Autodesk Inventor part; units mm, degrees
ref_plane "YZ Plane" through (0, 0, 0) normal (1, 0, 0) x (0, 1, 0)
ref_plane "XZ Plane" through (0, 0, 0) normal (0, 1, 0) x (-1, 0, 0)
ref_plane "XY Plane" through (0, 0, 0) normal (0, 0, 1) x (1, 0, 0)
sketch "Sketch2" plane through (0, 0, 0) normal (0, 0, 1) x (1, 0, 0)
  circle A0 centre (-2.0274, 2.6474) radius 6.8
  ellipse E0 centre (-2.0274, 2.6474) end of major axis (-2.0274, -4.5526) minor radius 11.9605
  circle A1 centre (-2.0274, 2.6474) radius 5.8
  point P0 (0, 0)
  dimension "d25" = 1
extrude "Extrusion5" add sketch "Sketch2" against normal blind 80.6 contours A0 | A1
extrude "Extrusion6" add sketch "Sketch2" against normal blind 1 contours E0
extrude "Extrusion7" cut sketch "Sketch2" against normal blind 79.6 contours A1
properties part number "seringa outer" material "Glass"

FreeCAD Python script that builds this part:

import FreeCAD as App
import Part
import Sketcher

V = App.Vector

doc = App.newDocument("Part")
body = doc.addObject("PartDesign::Body", "Body")

sketch1 = doc.addObject("Sketcher::SketchObject", "Sketch")
body.addObject(sketch1)
sketch1.AttachmentSupport = (doc.XY_Plane, [""])
sketch1.MapMode = "FlatFace"
sketch1.addGeometry(Part.Circle(V(-2, 3, 0), V(0, 0, 1), 7), False)
sketch1.addConstraint([
    Sketcher.Constraint("Diameter", 0, 13.6),
    Sketcher.Constraint("DistanceX", 0, 3, -1, 1, 2.0274),
    Sketcher.Constraint("DistanceY", -1, 1, 0, 3, 2.6474),
])
pad1 = doc.addObject("PartDesign::Pad", "Pad")
body.addObject(pad1)
pad1.Profile = sketch1
pad1.Length = 80.6
pad1.Reversed = True

sketch2 = doc.addObject("Sketcher::SketchObject", "Sketch001")
body.addObject(sketch2)
sketch2.AttachmentSupport = (doc.XY_Plane, [""])
sketch2.MapMode = "FlatFace"
sketch2.addGeometry([
    Part.Ellipse(V(9.9331, 2.6474, 0), V(-2.0274, 9.8474, 0), V(-2.0274, 2.6474, 0)),
    Part.Circle(V(-2.0274, 2.6474, 0), V(0, 0, 1), 6.8),
], False)
sketch2.addConstraint([
    Sketcher.Constraint("Block", 0),
    Sketcher.Constraint("Diameter", 1, 13.6),
    Sketcher.Constraint("DistanceX", 1, 3, -1, 1, 2.0274),
    Sketcher.Constraint("DistanceY", -1, 1, 1, 3, 2.6474),
])
pad2 = doc.addObject("PartDesign::Pad", "Pad001")
body.addObject(pad2)
pad2.Profile = sketch2
pad2.Length = 1
pad2.Reversed = True

sketch3 = doc.addObject("Sketcher::SketchObject", "Sketch002")
body.addObject(sketch3)
sketch3.AttachmentSupport = (doc.XY_Plane, [""])
sketch3.MapMode = "FlatFace"
sketch3.addGeometry(Part.Circle(V(-2, 3, 0), V(0, 0, 1), 6), False)
sketch3.addConstraint([
    Sketcher.Constraint("Diameter", 0, 11.6),
    Sketcher.Constraint("DistanceX", 0, 3, -1, 1, 2.0274),
    Sketcher.Constraint("DistanceY", -1, 1, 0, 3, 2.6474),
])
pocket1 = doc.addObject("PartDesign::Pocket", "Pocket")
body.addObject(pocket1)
pocket1.Profile = sketch3
pocket1.Length = 79.6

doc.recompute()
